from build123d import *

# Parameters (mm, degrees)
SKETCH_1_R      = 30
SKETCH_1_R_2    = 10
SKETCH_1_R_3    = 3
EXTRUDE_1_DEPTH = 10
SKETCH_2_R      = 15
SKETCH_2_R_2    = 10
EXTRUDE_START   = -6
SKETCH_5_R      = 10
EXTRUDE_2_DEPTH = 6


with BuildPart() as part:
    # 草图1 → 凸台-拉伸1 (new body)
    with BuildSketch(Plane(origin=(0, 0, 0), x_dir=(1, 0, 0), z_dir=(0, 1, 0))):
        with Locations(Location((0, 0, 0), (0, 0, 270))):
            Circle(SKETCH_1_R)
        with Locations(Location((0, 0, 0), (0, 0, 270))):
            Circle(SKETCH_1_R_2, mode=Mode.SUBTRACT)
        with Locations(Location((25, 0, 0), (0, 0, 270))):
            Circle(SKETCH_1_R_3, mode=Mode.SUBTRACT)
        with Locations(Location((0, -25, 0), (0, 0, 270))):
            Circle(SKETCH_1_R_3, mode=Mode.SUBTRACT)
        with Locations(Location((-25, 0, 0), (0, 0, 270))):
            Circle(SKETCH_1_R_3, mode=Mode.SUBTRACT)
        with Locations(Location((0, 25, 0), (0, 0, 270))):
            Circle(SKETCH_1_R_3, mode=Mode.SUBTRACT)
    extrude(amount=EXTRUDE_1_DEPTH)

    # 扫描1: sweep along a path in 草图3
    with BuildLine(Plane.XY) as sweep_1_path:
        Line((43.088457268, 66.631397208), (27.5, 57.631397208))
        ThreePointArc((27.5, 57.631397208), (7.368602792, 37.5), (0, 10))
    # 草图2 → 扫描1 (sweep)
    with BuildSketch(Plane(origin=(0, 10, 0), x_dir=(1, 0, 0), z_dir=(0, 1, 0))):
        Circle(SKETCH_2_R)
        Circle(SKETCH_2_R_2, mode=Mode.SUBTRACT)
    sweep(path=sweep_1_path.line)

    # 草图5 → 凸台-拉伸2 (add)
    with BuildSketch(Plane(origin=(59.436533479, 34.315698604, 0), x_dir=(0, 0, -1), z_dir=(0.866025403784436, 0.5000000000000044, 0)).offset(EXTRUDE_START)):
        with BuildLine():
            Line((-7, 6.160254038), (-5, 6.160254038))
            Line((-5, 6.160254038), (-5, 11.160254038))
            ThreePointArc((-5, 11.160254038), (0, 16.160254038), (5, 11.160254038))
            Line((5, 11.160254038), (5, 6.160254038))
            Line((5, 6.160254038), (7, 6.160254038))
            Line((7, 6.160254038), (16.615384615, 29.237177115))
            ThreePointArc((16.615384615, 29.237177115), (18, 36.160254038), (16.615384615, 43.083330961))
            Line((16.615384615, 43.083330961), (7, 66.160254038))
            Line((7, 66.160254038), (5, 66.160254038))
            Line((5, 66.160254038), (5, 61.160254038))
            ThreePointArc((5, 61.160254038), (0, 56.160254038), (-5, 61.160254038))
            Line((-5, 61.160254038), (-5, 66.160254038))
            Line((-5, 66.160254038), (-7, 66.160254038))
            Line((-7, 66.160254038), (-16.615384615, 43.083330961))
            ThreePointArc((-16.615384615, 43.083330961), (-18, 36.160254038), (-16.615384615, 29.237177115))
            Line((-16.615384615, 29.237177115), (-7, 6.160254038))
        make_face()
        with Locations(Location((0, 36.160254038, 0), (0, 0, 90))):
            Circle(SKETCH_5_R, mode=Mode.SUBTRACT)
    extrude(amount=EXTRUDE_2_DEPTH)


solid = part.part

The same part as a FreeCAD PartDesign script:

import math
import FreeCAD as App
import Part
import Sketcher
from FreeCAD import Vector
Q = App.Units.Quantity

doc = App.newDocument("Part")
params = doc.addObject("Spreadsheet::Sheet", "Params")
for row, (alias, value) in enumerate([
    ("sketch1_diameter", "60 mm"),
    ("sketch1_diameter2", "6 mm"),
    ("sketch1_diameter3", "20 mm"),
    ("pad1_length", "10 mm"),
    ("sketch2_diameter", "30 mm"),
    ("sketch2_diameter2", "20 mm"),
    ("sketch3_radius", "55 mm"),
    ("sketch3_length", "18 mm"),
    ("sketch4_diameter", "20 mm"),
    ("sketch4_radius", "5 mm"),
    ("sketch4_radius2", "18 mm"),
    ("sketch4_width", "2 mm"),
    ("sketch4_height", "5 mm"),
    ("pad2_length", "6 mm"),
], start=1):
    params.set(f"A{row}", alias)
    params.set(f"B{row}", "=" + value)
    params.setAlias(f"B{row}", alias)

body = doc.addObject("PartDesign::Body", "Body")

# Sketch on XZ plane
sketch1 = body.newObject("Sketcher::SketchObject", "Sketch")
sketch1.AttachmentSupport = (doc.getObject("XZ_Plane"), [""])
sketch1.MapMode = "FlatFace"
sketch1.addGeometry(Part.Circle(Vector(0, 0, 0), Vector(0, 0, 1), 30), False)
sketch1.addGeometry(Part.Circle(Vector(0, -25, 0), Vector(0, 0, 1), 3), False)
sketch1.addGeometry(Part.Circle(Vector(-25, 0, 0), Vector(0, 0, 1), 3), False)
sketch1.addGeometry(Part.Circle(Vector(25, 0, 0), Vector(0, 0, 1), 3), False)
sketch1.addGeometry(Part.Circle(Vector(0, 0, 0), Vector(0, 0, 1), 10), False)
sketch1.addGeometry(Part.Circle(Vector(0, 25, 0), Vector(0, 0, 1), 3), False)
sketch1.addConstraint(Sketcher.Constraint("Coincident", 0, 3, -1, 1))
sketch1.addConstraint(Sketcher.Constraint("Coincident", 4, 3, -1, 1))
sketch1.addConstraint(Sketcher.Constraint("Equal", 1, 2))
sketch1.addConstraint(Sketcher.Constraint("Equal", 2, 3))
sketch1.addConstraint(Sketcher.Constraint("Equal", 3, 5))
sketch1.addConstraint(Sketcher.Constraint("Symmetric", 2, 3, 3, 3, -1, 1))
sketch1.addConstraint(Sketcher.Constraint("Symmetric", 1, 3, 5, 3, -1, 1))
sketch1.addConstraint(Sketcher.Constraint("PointOnObject", 1, 3, -2))
sketch1.addConstraint(Sketcher.Constraint("PointOnObject", 2, 3, -1))
sketch1.addConstraint(Sketcher.Constraint("Diameter", 0, 60.0))
sketch1.addConstraint(Sketcher.Constraint("Diameter", 1, 6.0))
sketch1.addConstraint(Sketcher.Constraint("Diameter", 4, 20.0))
sketch1.addConstraint(Sketcher.Constraint("DistanceY", 1, 3, -1, 1, 25.0))
sketch1.addConstraint(Sketcher.Constraint("DistanceX", 2, 3, -1, 1, 25.0))
sketch1.setExpression("Constraints[9]", "Params.sketch1_diameter")
sketch1.setExpression("Constraints[10]", "Params.sketch1_diameter2")
sketch1.setExpression("Constraints[11]", "Params.sketch1_diameter3")
pad1 = body.newObject("PartDesign::Pad", "Pad")
pad1.Profile = sketch1
pad1.setExpression("Length", "Params.pad1_length")
pad1.Reversed = True

# Sketch on XZ plane
sketch2 = body.newObject("Sketcher::SketchObject", "Sketch001")
sketch2.AttachmentSupport = (doc.getObject("XZ_Plane"), [""])
sketch2.MapMode = "FlatFace"
sketch2.AttachmentOffset = App.Placement(Vector(0, 0, -10), App.Rotation())
sketch2.addGeometry(Part.Circle(Vector(0, 0, 0), Vector(0, 0, 1), 15), False)
sketch2.addGeometry(Part.Circle(Vector(0, 0, 0), Vector(0, 0, 1), 10), False)
sketch2.addConstraint(Sketcher.Constraint("Coincident", 0, 3, -1, 1))
sketch2.addConstraint(Sketcher.Constraint("Coincident", 1, 3, -1, 1))
sketch2.addConstraint(Sketcher.Constraint("Diameter", 0, 30.0))
sketch2.addConstraint(Sketcher.Constraint("Diameter", 1, 20.0))
sketch2.setExpression("Constraints[2]", "Params.sketch2_diameter")
sketch2.setExpression("Constraints[3]", "Params.sketch2_diameter2")

# Sketch on XY plane
sketch3 = body.newObject("Sketcher::SketchObject", "Sketch002")
sketch3.AttachmentSupport = (doc.getObject("XY_Plane"), [""])
sketch3.MapMode = "FlatFace"
sketch3.addGeometry(Part.LineSegment(Vector(43, 67, 0), Vector(28, 58, 0)), False)
sketch3.addGeometry(Part.ArcOfCircle(Part.Circle(Vector(55, 10, 0), Vector(0, 0, 1), 55), math.radians(120), math.radians(180)), False)
sketch3.addConstraint(Sketcher.Constraint("Tangent", 0, 2, 1, 1))
sketch3.addConstraint(Sketcher.Constraint("PointOnObject", 1, 2, -2))
sketch3.addConstraint(Sketcher.Constraint("Radius", 1, 55.0))
sketch3.addConstraint(Sketcher.Constraint("Angle", 0, Q("-150 deg")))
sketch3.addConstraint(Sketcher.Constraint("Distance", 0, 18.0))
sketch3.addConstraint(Sketcher.Constraint("DistanceY", -1, 1, 1, 3, 10.0))
sketch3.addConstraint(Sketcher.Constraint("DistanceY", -1, 1, 1, 2, 10.0))
sketch3.setExpression("Constraints[2]", "Params.sketch3_radius")
sketch3.setExpression("Constraints[4]", "Params.sketch3_length")
doc.recompute()

additivepipe = body.newObject("PartDesign::AdditivePipe", "AdditivePipe")
additivepipe.Profile = sketch2
additivepipe.Spine = (sketch3, ["Edge1", "Edge2"])

# Sketch on an angled plane
sketch4 = body.newObject("Sketcher::SketchObject", "Sketch003")
sketch4.Placement = App.Placement(Vector(54.240381, 31.315699, 0), App.Rotation(Vector(0, 0, -1), Vector(-0.5, 0.866025404, 0), Vector(0.866025404, 0.5, 0), "ZXY"))
sketch4.addGeometry(Part.LineSegment(Vector(-7, 6.2, 0), Vector(-5, 6.2, 0)), False)
sketch4.addGeometry(Part.LineSegment(Vector(-5, 6.2, 0), Vector(-5, 11.2, 0)), False)
sketch4.addGeometry(Part.ArcOfCircle(Part.Circle(Vector(0, 11.2, 0), Vector(0, 0, 1), 5), math.radians(0), math.radians(180)), False)
sketch4.addGeometry(Part.LineSegment(Vector(5, 11.2, 0), Vector(5, 6.2, 0)), False)
sketch4.addGeometry(Part.LineSegment(Vector(5, 6.2, 0), Vector(7, 6.2, 0)), False)
sketch4.addGeometry(Part.LineSegment(Vector(7, 6.2, 0), Vector(16.6, 29.2, 0)), False)
sketch4.addGeometry(Part.ArcOfCircle(Part.Circle(Vector(0, 36.2, 0), Vector(0, 0, 1), 18), math.radians(-23), math.radians(23)), False)
sketch4.addGeometry(Part.LineSegment(Vector(16.6, 43.1, 0), Vector(7, 66.2, 0)), False)
sketch4.addGeometry(Part.LineSegment(Vector(7, 66.2, 0), Vector(5, 66.2, 0)), False)
sketch4.addGeometry(Part.LineSegment(Vector(5, 66.2, 0), Vector(5, 61.2, 0)), False)
sketch4.addGeometry(Part.ArcOfCircle(Part.Circle(Vector(0, 61.2, 0), Vector(0, 0, 1), 5), math.radians(180), math.radians(360)), False)
sketch4.addGeometry(Part.LineSegment(Vector(-5, 61.2, 0), Vector(-5, 66.2, 0)), False)
sketch4.addGeometry(Part.LineSegment(Vector(-5, 66.2, 0), Vector(-7, 66.2, 0)), False)
sketch4.addGeometry(Part.LineSegment(Vector(-7, 66.2, 0), Vector(-16.6, 43.1, 0)), False)
sketch4.addGeometry(Part.ArcOfCircle(Part.Circle(Vector(0, 36.2, 0), Vector(0, 0, 1), 18), math.radians(157), math.radians(203)), False)
sketch4.addGeometry(Part.LineSegment(Vector(-16.6, 29.2, 0), Vector(-7, 6.2, 0)), False)
sketch4.addGeometry(Part.Circle(Vector(0, 36.2, 0), Vector(0, 0, 1), 10), False)
sketch4.addConstraint(Sketcher.Constraint("Coincident", 0, 2, 1, 1))
sketch4.addConstraint(Sketcher.Constraint("Tangent", 1, 2, 2, 2))
sketch4.addConstraint(Sketcher.Constraint("Tangent", 2, 1, 3, 1))
sketch4.addConstraint(Sketcher.Constraint("Coincident", 3, 2, 4, 1))
sketch4.addConstraint(Sketcher.Constraint("Coincident", 4, 2, 5, 1))
sketch4.addConstraint(Sketcher.Constraint("Tangent", 5, 2, 6, 1))
sketch4.addConstraint(Sketcher.Constraint("Tangent", 6, 2, 7, 1))
sketch4.addConstraint(Sketcher.Constraint("Coincident", 7, 2, 8, 1))
sketch4.addConstraint(Sketcher.Constraint("Coincident", 8, 2, 9, 1))
sketch4.addConstraint(Sketcher.Constraint("Tangent", 9, 2, 10, 2))
sketch4.addConstraint(Sketcher.Constraint("Tangent", 10, 1, 11, 1))
sketch4.addConstraint(Sketcher.Constraint("Coincident", 11, 2, 12, 1))
sketch4.addConstraint(Sketcher.Constraint("Coincident", 12, 2, 13, 1))
sketch4.addConstraint(Sketcher.Constraint("Tangent", 13, 2, 14, 1))
sketch4.addConstraint(Sketcher.Constraint("Tangent", 14, 2, 15, 1))
sketch4.addConstraint(Sketcher.Constraint("Coincident", 15, 2, 0, 1))
sketch4.addConstraint(Sketcher.Constraint("Horizontal", 0))
sketch4.addConstraint(Sketcher.Constraint("Vertical", 1))
sketch4.addConstraint(Sketcher.Constraint("Vertical", 3))
sketch4.addConstraint(Sketcher.Constraint("Horizontal", 4))
sketch4.addConstraint(Sketcher.Constraint("Horizontal", 8))
sketch4.addConstraint(Sketcher.Constraint("Vertical", 9))
sketch4.addConstraint(Sketcher.Constraint("Vertical", 11))
sketch4.addConstraint(Sketcher.Constraint("Horizontal", 12))
sketch4.addConstraint(Sketcher.Constraint("Coincident", 14, 3, 6, 3))
sketch4.addConstraint(Sketcher.Constraint("Coincident", 16, 3, 6, 3))
sketch4.addConstraint(Sketcher.Constraint("Equal", 2, 10))
sketch4.addConstraint(Sketcher.Constraint("Equal", 6, 14))
sketch4.addConstraint(Sketcher.Constraint("Symmetric", 0, 2, 3, 2, -2))
sketch4.addConstraint(Sketcher.Constraint("Symmetric", 8, 2, 11, 2, -2))
sketch4.addConstraint(Sketcher.Constraint("Symmetric", 6, 2, 13, 2, -2))
sketch4.addConstraint(Sketcher.Constraint("Parallel", 5, 13))
sketch4.addConstraint(Sketcher.Constraint("Parallel", 7, 15))
sketch4.addConstraint(Sketcher.Constraint("Vertical", 4, 2, 7, 2))
sketch4.addConstraint(Sketcher.Constraint("Equal", 3, 9))
sketch4.addConstraint(Sketcher.Constraint("Diameter", 16, 20.0))
sketch4.addConstraint(Sketcher.Constraint("Radius", 2, 5.0))
sketch4.addConstraint(Sketcher.Constraint("Radius", 6, 18.0))
sketch4.addConstraint(Sketcher.Constraint("DistanceX", 0, 1, 0, 2, 2.0))
sketch4.addConstraint(Sketcher.Constraint("DistanceY", 1, 1, 1, 2, 5.0))
sketch4.addConstraint(Sketcher.Constraint("Distance", 5, 25.0))
sketch4.addConstraint(Sketcher.Constraint("DistanceY", -1, 1, 6, 2, 43.083331))
sketch4.setExpression("Constraints[35]", "Params.sketch4_diameter")
sketch4.setExpression("Constraints[36]", "Params.sketch4_radius")
sketch4.setExpression("Constraints[37]", "Params.sketch4_radius2")
sketch4.setExpression("Constraints[38]", "Params.sketch4_width")
sketch4.setExpression("Constraints[39]", "Params.sketch4_height")
pad2 = body.newObject("PartDesign::Pad", "Pad001")
pad2.Profile = sketch4
pad2.setExpression("Length", "Params.pad2_length")

doc.recompute()
